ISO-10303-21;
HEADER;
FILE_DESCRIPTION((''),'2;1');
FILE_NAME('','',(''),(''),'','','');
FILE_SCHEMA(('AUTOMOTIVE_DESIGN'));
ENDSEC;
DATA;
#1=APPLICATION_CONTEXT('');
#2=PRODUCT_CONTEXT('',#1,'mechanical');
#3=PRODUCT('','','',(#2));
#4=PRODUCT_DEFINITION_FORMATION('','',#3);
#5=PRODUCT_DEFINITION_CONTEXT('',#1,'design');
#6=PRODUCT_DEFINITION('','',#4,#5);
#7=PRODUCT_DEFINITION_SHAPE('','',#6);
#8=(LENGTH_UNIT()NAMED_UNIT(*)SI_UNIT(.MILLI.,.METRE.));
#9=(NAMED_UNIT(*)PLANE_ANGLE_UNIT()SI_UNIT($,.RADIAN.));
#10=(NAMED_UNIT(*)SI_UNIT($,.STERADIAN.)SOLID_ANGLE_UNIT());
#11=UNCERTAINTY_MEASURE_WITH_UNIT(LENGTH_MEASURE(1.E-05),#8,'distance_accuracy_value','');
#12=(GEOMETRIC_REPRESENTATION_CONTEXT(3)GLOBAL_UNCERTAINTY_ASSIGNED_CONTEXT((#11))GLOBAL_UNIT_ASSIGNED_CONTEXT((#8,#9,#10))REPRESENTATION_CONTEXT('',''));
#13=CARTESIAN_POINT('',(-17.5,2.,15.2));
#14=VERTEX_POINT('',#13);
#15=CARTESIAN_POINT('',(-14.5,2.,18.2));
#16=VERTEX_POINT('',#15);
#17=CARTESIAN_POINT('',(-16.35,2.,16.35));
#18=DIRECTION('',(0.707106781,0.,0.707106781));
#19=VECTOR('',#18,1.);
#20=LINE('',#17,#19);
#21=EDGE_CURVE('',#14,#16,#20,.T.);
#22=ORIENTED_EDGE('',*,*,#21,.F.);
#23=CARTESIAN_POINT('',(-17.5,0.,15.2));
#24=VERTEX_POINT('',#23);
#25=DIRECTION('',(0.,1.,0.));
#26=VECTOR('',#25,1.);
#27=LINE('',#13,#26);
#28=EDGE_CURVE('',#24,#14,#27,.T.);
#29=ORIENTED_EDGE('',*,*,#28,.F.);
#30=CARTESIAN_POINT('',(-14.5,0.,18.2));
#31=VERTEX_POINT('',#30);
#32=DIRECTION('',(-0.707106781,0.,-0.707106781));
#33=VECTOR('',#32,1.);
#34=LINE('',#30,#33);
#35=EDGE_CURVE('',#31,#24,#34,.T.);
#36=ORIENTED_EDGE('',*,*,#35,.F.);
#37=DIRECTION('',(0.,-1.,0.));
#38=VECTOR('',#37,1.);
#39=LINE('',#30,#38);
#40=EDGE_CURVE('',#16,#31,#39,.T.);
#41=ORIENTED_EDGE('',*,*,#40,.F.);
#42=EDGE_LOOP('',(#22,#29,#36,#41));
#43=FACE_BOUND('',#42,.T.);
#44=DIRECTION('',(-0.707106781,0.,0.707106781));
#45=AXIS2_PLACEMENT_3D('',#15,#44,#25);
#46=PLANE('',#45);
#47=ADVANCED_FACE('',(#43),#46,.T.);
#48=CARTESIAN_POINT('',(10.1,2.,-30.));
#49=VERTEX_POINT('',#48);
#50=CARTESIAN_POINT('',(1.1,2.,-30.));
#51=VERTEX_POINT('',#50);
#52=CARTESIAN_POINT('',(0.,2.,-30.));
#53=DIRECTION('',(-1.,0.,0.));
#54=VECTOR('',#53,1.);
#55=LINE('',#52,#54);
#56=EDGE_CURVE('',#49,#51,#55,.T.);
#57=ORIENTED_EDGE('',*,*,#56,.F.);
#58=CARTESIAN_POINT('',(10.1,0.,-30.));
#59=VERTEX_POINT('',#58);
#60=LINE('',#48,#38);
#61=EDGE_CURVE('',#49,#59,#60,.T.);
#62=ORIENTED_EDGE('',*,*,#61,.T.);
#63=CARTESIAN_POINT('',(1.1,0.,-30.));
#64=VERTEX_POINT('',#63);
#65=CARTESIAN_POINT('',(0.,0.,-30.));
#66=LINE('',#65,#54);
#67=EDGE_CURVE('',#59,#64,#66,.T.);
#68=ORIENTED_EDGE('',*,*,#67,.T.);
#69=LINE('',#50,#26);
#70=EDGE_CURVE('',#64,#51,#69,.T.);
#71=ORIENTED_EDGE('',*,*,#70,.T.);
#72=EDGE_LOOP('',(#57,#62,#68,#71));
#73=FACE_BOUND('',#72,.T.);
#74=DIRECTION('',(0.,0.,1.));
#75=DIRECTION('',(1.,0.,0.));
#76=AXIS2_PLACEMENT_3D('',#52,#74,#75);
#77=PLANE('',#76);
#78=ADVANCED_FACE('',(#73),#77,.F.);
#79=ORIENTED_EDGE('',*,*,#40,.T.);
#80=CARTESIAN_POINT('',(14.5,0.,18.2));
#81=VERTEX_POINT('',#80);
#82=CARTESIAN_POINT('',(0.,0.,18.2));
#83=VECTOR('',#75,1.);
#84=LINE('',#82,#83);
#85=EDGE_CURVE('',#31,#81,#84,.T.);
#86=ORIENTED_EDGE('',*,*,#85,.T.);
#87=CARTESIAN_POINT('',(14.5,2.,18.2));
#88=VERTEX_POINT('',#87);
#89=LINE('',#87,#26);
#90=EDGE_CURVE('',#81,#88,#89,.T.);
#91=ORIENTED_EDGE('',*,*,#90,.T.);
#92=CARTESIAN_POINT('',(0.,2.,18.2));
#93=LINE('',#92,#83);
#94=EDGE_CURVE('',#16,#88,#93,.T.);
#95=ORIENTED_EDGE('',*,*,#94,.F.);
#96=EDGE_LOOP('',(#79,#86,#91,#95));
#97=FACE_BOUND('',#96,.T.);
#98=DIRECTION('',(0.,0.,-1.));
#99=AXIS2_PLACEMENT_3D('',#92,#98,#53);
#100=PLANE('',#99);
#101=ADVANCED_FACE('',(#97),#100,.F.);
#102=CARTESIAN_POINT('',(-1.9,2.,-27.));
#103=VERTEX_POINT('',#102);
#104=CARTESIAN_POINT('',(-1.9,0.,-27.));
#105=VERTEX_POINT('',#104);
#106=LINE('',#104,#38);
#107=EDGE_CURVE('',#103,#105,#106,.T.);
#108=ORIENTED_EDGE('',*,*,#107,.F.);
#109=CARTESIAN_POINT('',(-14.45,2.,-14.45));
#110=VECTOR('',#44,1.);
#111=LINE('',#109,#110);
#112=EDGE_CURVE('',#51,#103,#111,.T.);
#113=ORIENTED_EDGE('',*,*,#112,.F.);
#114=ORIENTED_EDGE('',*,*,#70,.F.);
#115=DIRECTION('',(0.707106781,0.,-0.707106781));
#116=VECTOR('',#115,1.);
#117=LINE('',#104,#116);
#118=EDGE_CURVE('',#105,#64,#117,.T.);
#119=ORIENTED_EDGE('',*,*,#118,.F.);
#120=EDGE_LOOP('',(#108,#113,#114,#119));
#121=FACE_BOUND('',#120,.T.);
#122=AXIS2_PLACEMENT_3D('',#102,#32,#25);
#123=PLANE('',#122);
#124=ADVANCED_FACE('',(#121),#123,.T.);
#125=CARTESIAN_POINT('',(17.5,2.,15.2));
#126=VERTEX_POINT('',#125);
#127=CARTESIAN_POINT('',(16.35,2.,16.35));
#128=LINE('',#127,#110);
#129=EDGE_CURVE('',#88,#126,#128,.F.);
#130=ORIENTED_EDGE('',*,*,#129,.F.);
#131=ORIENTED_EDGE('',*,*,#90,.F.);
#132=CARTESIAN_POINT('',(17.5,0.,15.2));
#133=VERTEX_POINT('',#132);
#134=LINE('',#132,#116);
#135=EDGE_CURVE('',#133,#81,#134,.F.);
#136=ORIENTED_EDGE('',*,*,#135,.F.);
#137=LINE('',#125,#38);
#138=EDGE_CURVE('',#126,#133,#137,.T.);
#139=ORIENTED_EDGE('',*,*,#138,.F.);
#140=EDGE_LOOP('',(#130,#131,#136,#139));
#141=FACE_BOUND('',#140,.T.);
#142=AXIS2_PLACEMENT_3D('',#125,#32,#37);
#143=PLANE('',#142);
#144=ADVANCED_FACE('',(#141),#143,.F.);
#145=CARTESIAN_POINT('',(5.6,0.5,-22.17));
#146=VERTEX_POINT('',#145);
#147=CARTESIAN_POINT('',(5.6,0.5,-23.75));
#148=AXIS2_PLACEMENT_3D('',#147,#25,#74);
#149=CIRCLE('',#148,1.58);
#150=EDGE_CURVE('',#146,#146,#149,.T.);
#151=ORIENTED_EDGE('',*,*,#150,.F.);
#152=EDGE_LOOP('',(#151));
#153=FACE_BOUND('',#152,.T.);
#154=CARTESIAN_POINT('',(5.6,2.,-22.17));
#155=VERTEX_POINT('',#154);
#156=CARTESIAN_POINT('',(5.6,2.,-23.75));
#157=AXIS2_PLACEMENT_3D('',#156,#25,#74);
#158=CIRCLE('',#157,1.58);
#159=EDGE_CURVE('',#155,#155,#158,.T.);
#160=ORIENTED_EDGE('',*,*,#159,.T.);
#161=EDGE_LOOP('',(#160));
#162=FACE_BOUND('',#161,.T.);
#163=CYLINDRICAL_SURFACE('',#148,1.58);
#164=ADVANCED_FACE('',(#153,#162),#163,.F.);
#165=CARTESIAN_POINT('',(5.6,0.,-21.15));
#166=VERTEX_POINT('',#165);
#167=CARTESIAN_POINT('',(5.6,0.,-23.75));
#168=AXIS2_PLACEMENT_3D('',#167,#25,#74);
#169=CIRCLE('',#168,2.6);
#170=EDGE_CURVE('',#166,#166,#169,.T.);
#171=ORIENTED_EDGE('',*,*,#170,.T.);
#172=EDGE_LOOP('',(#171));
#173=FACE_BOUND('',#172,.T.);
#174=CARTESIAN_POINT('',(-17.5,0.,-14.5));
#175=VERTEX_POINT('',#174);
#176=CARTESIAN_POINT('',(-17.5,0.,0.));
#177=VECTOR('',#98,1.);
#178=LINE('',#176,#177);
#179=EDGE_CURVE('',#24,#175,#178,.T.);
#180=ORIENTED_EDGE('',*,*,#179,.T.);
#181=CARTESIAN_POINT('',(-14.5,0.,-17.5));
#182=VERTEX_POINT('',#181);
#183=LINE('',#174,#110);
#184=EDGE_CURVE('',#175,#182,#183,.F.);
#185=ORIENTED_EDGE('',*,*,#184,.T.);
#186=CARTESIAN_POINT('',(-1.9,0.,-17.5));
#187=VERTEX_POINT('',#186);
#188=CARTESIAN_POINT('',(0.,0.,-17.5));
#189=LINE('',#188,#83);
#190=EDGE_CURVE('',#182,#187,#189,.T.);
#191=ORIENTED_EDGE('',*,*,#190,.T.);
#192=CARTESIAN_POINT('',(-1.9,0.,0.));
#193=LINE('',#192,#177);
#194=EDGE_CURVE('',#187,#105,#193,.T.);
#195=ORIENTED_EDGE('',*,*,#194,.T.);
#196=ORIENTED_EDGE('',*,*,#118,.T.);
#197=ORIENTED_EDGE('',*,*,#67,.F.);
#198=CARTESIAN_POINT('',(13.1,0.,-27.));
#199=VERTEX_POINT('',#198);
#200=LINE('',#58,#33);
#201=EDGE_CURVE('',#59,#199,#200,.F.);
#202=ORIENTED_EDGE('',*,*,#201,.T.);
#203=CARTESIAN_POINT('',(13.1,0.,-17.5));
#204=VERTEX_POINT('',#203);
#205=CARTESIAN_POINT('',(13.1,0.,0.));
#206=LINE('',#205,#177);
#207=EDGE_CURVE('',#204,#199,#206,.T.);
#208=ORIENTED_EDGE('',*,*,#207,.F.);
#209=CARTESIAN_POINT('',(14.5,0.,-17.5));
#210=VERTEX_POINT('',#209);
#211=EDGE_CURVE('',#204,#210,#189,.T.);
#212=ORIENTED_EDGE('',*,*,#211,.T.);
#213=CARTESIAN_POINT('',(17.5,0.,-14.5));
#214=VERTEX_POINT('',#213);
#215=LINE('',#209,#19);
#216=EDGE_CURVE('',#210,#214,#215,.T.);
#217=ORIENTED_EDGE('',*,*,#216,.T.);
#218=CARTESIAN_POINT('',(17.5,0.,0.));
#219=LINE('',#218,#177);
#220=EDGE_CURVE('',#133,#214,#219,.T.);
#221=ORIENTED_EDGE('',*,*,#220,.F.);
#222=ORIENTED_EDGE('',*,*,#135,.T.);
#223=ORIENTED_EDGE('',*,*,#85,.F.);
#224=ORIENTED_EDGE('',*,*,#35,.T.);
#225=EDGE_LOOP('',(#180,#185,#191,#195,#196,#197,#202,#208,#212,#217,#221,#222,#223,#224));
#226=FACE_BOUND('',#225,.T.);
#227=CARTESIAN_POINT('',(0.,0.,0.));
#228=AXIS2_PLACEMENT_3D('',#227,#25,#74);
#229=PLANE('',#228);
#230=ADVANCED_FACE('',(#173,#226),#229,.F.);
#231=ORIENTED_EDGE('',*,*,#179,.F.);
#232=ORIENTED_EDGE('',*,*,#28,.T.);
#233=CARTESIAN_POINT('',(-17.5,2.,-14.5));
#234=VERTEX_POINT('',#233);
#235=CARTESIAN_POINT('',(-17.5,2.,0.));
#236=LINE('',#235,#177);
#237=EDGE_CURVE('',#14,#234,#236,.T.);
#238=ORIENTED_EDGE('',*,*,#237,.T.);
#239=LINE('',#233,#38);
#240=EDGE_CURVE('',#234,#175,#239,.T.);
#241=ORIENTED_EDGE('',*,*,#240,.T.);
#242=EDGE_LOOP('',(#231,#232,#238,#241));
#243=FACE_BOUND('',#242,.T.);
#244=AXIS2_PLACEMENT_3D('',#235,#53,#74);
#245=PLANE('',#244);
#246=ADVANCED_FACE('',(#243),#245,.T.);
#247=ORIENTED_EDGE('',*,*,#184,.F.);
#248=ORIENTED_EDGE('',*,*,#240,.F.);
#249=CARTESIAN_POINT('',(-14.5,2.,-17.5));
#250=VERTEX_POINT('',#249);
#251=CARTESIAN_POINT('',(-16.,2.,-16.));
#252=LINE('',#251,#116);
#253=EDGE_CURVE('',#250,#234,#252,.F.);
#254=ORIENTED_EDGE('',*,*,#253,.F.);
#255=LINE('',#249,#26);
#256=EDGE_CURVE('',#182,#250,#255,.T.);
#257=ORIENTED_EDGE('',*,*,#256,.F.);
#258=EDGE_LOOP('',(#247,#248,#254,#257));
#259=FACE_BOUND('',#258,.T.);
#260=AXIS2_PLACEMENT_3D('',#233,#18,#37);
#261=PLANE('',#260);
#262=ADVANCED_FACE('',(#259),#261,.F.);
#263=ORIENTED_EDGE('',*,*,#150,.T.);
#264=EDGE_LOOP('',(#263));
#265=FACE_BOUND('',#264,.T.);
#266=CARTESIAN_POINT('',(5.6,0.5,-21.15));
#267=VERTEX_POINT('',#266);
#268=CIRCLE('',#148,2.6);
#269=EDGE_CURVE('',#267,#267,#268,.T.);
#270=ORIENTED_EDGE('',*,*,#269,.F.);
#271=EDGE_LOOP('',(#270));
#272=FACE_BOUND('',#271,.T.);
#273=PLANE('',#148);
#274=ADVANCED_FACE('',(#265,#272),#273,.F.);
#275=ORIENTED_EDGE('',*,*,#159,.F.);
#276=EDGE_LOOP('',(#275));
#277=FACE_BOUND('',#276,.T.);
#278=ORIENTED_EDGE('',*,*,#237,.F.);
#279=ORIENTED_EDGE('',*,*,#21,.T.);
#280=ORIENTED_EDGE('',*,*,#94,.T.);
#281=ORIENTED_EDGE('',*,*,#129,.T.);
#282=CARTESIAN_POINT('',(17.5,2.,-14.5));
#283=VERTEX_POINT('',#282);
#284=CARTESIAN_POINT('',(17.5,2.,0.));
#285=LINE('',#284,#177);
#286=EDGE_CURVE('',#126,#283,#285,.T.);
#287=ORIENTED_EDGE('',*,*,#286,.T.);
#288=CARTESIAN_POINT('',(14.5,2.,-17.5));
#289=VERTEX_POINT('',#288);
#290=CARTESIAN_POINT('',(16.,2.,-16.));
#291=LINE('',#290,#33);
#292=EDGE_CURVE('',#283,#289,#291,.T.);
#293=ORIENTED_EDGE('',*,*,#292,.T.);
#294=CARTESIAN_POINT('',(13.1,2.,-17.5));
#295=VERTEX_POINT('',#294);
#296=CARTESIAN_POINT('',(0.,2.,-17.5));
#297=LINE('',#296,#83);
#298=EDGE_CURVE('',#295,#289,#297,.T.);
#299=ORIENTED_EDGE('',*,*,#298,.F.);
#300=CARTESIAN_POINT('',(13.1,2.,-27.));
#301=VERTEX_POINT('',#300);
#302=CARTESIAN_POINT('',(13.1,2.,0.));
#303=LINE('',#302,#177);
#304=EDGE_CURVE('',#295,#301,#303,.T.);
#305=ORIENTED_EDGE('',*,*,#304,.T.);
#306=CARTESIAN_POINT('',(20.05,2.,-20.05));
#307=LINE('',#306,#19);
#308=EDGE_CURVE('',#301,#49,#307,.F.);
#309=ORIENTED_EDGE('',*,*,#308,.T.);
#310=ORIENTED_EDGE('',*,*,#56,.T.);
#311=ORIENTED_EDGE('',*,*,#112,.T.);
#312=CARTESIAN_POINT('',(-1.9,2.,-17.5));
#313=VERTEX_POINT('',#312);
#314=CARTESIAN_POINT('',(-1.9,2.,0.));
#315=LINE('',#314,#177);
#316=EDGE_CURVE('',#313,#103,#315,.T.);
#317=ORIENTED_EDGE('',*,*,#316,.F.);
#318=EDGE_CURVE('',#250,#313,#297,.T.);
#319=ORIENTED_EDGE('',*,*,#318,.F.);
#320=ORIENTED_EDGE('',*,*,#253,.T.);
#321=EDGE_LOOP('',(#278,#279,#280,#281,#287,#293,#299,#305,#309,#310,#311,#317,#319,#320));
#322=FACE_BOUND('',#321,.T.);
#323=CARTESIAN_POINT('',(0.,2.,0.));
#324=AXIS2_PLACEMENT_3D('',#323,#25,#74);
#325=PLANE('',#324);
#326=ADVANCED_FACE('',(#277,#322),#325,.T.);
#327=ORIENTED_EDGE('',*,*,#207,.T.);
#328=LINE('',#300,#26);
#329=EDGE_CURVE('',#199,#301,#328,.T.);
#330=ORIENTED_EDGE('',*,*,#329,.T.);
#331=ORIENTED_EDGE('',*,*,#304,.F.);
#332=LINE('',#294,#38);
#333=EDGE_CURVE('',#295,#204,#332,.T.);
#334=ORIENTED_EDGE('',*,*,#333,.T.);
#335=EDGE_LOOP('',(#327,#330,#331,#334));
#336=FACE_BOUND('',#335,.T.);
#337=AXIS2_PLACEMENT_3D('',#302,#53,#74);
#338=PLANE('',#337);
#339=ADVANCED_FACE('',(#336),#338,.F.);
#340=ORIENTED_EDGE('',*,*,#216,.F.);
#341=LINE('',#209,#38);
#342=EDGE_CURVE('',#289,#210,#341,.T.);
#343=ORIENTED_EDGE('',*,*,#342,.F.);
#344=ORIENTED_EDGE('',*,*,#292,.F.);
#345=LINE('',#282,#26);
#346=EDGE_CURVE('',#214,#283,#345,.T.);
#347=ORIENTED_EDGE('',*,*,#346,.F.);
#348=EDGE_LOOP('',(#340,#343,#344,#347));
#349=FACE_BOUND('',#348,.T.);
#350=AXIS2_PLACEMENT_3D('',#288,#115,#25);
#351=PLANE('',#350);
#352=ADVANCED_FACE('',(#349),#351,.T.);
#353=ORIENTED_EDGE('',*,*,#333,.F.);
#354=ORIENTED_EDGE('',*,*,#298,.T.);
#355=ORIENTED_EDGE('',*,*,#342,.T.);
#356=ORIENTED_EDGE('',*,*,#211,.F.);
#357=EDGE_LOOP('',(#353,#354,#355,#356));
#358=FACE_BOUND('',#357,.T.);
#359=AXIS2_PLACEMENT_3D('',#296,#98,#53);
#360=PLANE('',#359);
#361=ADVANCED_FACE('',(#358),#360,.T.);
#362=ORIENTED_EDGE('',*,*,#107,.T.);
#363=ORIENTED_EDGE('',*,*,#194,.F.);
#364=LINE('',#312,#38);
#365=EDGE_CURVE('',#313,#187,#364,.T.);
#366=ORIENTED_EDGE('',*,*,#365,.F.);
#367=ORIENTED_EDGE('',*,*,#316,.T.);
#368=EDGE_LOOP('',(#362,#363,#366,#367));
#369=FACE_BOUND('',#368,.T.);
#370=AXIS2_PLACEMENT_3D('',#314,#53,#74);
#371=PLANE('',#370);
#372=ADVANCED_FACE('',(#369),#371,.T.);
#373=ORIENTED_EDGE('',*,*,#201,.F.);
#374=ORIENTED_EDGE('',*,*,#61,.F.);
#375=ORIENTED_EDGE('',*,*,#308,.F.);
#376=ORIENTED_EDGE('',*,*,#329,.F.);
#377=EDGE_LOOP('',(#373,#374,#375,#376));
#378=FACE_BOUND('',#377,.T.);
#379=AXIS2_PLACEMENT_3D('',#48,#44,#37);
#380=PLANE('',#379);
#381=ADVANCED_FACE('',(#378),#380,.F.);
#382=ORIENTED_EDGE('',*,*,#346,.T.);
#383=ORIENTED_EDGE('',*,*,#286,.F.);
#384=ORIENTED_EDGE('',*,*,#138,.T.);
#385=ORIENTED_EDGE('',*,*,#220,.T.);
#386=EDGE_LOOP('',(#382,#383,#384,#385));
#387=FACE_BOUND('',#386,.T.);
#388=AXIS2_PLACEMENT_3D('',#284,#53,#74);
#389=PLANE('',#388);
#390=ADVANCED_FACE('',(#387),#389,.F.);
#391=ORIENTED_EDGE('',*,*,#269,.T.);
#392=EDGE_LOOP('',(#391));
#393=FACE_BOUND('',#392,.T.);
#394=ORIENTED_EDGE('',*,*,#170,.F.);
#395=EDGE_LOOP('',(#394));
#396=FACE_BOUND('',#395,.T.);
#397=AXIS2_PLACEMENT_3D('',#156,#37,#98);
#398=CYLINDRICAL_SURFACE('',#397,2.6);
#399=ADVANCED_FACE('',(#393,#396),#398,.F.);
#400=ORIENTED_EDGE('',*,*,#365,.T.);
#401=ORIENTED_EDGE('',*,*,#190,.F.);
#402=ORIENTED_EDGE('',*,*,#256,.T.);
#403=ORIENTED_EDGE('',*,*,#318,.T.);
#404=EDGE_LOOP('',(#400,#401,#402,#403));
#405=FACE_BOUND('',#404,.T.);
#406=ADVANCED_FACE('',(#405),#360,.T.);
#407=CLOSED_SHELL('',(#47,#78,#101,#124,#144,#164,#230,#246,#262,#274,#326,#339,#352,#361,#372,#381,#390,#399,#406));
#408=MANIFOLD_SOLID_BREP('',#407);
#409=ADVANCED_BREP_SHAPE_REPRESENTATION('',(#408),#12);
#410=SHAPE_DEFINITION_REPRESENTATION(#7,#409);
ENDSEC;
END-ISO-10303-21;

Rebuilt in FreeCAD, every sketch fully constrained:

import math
import FreeCAD as App
import Part
import Sketcher
from FreeCAD import Vector
Q = App.Units.Quantity


def edges_at(feature, points):
    """Names of the edges that pass closest to the given points."""
    edges = feature.Shape.Edges
    near = lambda p: min(range(len(edges)), key=lambda i: edges[i].distToShape(Part.Vertex(*p))[0])
    return sorted({f"Edge{near(p) + 1}" for p in points})

doc = App.newDocument("Part")
body = doc.addObject("PartDesign::Body", "Body")

sketch1 = body.newObject("Sketcher::SketchObject", "Sketch")
sketch1.AttachmentSupport = (doc.getObject("XZ_Plane"), [""])
sketch1.MapMode = "FlatFace"
sketch1.addGeometry(Part.LineSegment(Vector(13.1, -17.5, 0), Vector(13.1, -30, 0)), False)
sketch1.addGeometry(Part.LineSegment(Vector(13.1, -30, 0), Vector(-1.9, -30, 0)), False)
sketch1.addGeometry(Part.LineSegment(Vector(-1.9, -30, 0), Vector(-1.9, -17.5, 0)), False)
sketch1.addGeometry(Part.LineSegment(Vector(-1.9, -17.5, 0), Vector(-17.5, -17.5, 0)), False)
sketch1.addGeometry(Part.LineSegment(Vector(-17.5, -17.5, 0), Vector(-17.5, 18.2, 0)), False)
sketch1.addGeometry(Part.LineSegment(Vector(-17.5, 18.2, 0), Vector(17.5, 18.2, 0)), False)
sketch1.addGeometry(Part.LineSegment(Vector(17.5, 18.2, 0), Vector(17.5, -17.5, 0)), False)
sketch1.addGeometry(Part.LineSegment(Vector(17.5, -17.5, 0), Vector(13.1, -17.5, 0)), False)
sketch1.addGeometry(Part.ArcOfCircle(Part.Circle(Vector(5.6, -23.7, 0), Vector(0, 0, 1), 2.6), math.radians(-43), math.radians(0)), False)
sketch1.addGeometry(Part.ArcOfCircle(Part.Circle(Vector(5.6, -23.8, 0), Vector(0, 0, 1), 2.6), math.radians(0), math.radians(43)), False)
sketch1.addGeometry(Part.ArcOfCircle(Part.Circle(Vector(5.6, -23.8, 0), Vector(0, 0, 1), 2.6), math.radians(43), math.radians(317)), False)
sketch1.addConstraint(Sketcher.Constraint("Coincident", 0, 2, 1, 1))
sketch1.addConstraint(Sketcher.Constraint("Coincident", 1, 2, 2, 1))
sketch1.addConstraint(Sketcher.Constraint("Coincident", 2, 2, 3, 1))
sketch1.addConstraint(Sketcher.Constraint("Coincident", 3, 2, 4, 1))
sketch1.addConstraint(Sketcher.Constraint("Coincident", 4, 2, 5, 1))
sketch1.addConstraint(Sketcher.Constraint("Coincident", 5, 2, 6, 1))
sketch1.addConstraint(Sketcher.Constraint("Coincident", 6, 2, 7, 1))
sketch1.addConstraint(Sketcher.Constraint("Coincident", 7, 2, 0, 1))
sketch1.addConstraint(Sketcher.Constraint("Tangent", 8, 2, 9, 1))
sketch1.addConstraint(Sketcher.Constraint("Tangent", 9, 2, 10, 1))
sketch1.addConstraint(Sketcher.Constraint("Tangent", 10, 2, 8, 1))
sketch1.addConstraint(Sketcher.Constraint("Vertical", 0))
sketch1.addConstraint(Sketcher.Constraint("Horizontal", 1))
sketch1.addConstraint(Sketcher.Constraint("Vertical", 2))
sketch1.addConstraint(Sketcher.Constraint("Horizontal", 3))
sketch1.addConstraint(Sketcher.Constraint("Vertical", 4))
sketch1.addConstraint(Sketcher.Constraint("Horizontal", 5))
sketch1.addConstraint(Sketcher.Constraint("Vertical", 6))
sketch1.addConstraint(Sketcher.Constraint("Horizontal", 7))
sketch1.addConstraint(Sketcher.Constraint("Symmetric", 3, 2, 6, 2, -2))
sketch1.addConstraint(Sketcher.Constraint("Horizontal", 10, 3, 8, 2))
sketch1.addConstraint(Sketcher.Constraint("Vertical", 9, 2, 10, 2))
sketch1.addConstraint(Sketcher.Constraint("Radius", 8, Q("2.6 mm")))
sketch1.addConstraint(Sketcher.Constraint("DistanceX", 1, 2, 1, 1, Q("15 mm")))
sketch1.addConstraint(Sketcher.Constraint("DistanceX", 5, 1, 5, 2, Q("35 mm")))
sketch1.addConstraint(Sketcher.Constraint("DistanceX", 3, 2, 3, 1, Q("15.6 mm")))
sketch1.addConstraint(Sketcher.Constraint("DistanceY", 0, 2, 0, 1, Q("12.5 mm")))
sketch1.addConstraint(Sketcher.Constraint("DistanceY", 4, 1, 4, 2, Q("35.7 mm")))
sketch1.addConstraint(Sketcher.Constraint("DistanceY", 0, 2, -1, 1, Q("30 mm")))
sketch1.addConstraint(Sketcher.Constraint("DistanceX", -1, 1, 8, 3, Q("5.6 mm")))
sketch1.addConstraint(Sketcher.Constraint("DistanceX", -1, 1, 9, 2, Q("7.5 mm")))
sketch1.addConstraint(Sketcher.Constraint("DistanceY", 8, 3, -1, 1, Q("23.75 mm")))
pad1 = body.newObject("PartDesign::Pad", "Pad")
pad1.Profile = sketch1
pad1.Length = 2
pad1.Reversed = True
doc.recompute()

chamfer = body.newObject("PartDesign::Chamfer", "Chamfer")
chamfer.Base = (pad1, edges_at(pad1, [
    (-1.9, 1, -30),
    (13.1, 1, -30),
    (17.5, 1, -17.5),
    (17.5, 1, 18.2),
    (-17.5, 1, 18.2),
    (-17.5, 1, -17.5),
]))
chamfer.Size = 3

sketch2 = body.newObject("Sketcher::SketchObject", "Sketch001")
sketch2.AttachmentSupport = (doc.getObject("XZ_Plane"), [""])
sketch2.MapMode = "FlatFace"
sketch2.AttachmentOffset = App.Placement(Vector(0, 0, -2), App.Rotation())
sketch2.addGeometry(Part.Circle(Vector(5.6, -23.8, 0), Vector(0, 0, 1), 2.6), False)
sketch2.addGeometry(Part.Circle(Vector(5.6, -23.8, 0), Vector(0, 0, 1), 1.6), False)
sketch2.addConstraint(Sketcher.Constraint("Coincident", 1, 3, 0, 3))
sketch2.addConstraint(Sketcher.Constraint("Diameter", 0, Q("5.2 mm")))
sketch2.addConstraint(Sketcher.Constraint("Diameter", 1, Q("3.16 mm")))
sketch2.addConstraint(Sketcher.Constraint("DistanceX", -1, 1, 0, 3, Q("5.6 mm")))
sketch2.addConstraint(Sketcher.Constraint("DistanceY", 0, 3, -1, 1, Q("23.75 mm")))
pad2 = body.newObject("PartDesign::Pad", "Pad001")
pad2.Profile = sketch2
pad2.Length = 1.5

doc.recompute()
